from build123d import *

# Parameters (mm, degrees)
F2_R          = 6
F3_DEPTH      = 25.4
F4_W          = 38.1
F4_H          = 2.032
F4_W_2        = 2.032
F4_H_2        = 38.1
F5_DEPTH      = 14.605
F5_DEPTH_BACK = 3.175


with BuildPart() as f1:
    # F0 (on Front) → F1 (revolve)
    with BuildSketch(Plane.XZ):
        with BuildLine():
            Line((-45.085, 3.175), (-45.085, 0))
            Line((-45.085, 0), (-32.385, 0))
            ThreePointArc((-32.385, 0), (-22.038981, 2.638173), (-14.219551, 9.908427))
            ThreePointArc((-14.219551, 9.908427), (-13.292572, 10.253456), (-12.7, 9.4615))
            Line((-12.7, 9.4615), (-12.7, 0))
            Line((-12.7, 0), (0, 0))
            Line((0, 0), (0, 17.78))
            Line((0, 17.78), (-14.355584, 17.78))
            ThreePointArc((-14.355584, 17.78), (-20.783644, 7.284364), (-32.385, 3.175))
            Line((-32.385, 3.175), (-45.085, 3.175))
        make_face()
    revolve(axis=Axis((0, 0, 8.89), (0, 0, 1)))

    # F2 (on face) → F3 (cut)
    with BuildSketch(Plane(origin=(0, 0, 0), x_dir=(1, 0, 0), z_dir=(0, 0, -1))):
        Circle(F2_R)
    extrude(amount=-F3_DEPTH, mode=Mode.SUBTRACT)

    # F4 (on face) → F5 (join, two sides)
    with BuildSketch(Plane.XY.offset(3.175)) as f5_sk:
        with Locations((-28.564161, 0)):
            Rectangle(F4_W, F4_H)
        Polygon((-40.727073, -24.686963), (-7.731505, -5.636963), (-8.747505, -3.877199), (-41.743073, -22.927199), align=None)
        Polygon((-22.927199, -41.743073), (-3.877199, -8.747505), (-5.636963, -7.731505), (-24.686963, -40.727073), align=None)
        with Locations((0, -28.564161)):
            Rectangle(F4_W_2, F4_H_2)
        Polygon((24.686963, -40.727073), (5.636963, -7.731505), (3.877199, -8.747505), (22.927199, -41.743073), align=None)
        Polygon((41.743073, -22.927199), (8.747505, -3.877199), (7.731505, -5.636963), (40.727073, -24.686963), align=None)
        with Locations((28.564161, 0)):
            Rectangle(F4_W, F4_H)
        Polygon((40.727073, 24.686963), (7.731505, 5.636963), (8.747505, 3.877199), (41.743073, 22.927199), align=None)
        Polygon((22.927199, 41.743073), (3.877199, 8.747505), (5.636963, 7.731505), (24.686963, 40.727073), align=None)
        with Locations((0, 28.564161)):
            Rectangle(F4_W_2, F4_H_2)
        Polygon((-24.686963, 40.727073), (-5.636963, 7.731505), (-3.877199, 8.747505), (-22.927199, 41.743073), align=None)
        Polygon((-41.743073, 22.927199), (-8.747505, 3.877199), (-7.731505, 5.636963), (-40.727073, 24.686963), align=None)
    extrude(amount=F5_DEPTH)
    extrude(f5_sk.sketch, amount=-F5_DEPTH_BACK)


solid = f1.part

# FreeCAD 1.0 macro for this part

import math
import FreeCAD as App
import Part
import Sketcher

V = App.Vector
Q = App.Units.Quantity

doc = App.newDocument("Part")
params = doc.addObject("Spreadsheet::Sheet", "Params")
for row, (alias, value) in enumerate([
    ("sketch1_width", "0.5 in"),
    ("sketch1_height", "0.7 in"),
    ("sketch1_height2", "0.125 in"),
    ("revolution_angle", "360 deg"),
    ("pocket1_length", "1 in"),
    ("sketch3_width", "1.5 in"),
    ("sketch3_length", "1.5 in"),
    ("sketch3_width2", "0.08 in"),
    ("sketch3_length2", "0.08 in"),
    ("pad1_length", "0.575 in"),
    ("pad1_length2", "0.125 in"),
], start=1):
    params.set(f"A{row}", alias)
    params.set(f"B{row}", "=" + value)
    params.setAlias(f"B{row}", alias)

body = doc.addObject("PartDesign::Body", "Body")

# Sketch on XZ plane
sketch1 = doc.addObject("Sketcher::SketchObject", "Sketch")
body.addObject(sketch1)
sketch1.AttachmentSupport = (doc.XZ_Plane, [""])
sketch1.MapMode = "FlatFace"
sketch1.addGeometry([
    Part.LineSegment(V(-45.1, 3.2, 0), V(-45.1, 0, 0)),  # 0
    Part.LineSegment(V(-45.1, 0, 0), V(-32.4, 0, 0)),  # 1
    Part.ArcOfCircle(Part.Circle(V(-32.4, 21.6, 0), V(0, 0, 1), 21.6), math.radians(-90), math.radians(-33)),  # 2
    Part.ArcOfCircle(Part.Circle(V(-13.5, 9.5, 0), V(0, 0, 1), 0.8), math.radians(0), math.radians(147)),  # 3
    Part.LineSegment(V(-12.7, 9.5, 0), V(-12.7, 0, 0)),  # 4
    Part.LineSegment(V(-12.7, 0, 0), V(0, 0, 0)),  # 5
    Part.LineSegment(V(0, 0, 0), V(0, 17.8, 0)),  # 6
    Part.LineSegment(V(0, 17.8, 0), V(-14.4, 17.8, 0)),  # 7
    Part.ArcOfCircle(Part.Circle(V(-32.4, 21.6, 0), V(0, 0, 1), 18.4), math.radians(-90), math.radians(-12)),  # 8
    Part.LineSegment(V(-32.4, 3.2, 0), V(-45.1, 3.2, 0)),  # 9
], False)
sketch1.addConstraint([
    Sketcher.Constraint("Coincident", 0, 2, 1, 1),
    Sketcher.Constraint("Tangent", 1, 2, 2, 1),
    Sketcher.Constraint("Tangent", 2, 2, 3, 2),
    Sketcher.Constraint("Tangent", 3, 1, 4, 1),
    Sketcher.Constraint("Coincident", 4, 2, 5, 1),
    Sketcher.Constraint("Coincident", 5, 2, 6, 1),
    Sketcher.Constraint("Coincident", 6, 2, 7, 1),
    Sketcher.Constraint("Coincident", 7, 2, 8, 2),
    Sketcher.Constraint("Tangent", 8, 1, 9, 1),
    Sketcher.Constraint("Coincident", 9, 2, 0, 1),
    Sketcher.Constraint("Vertical", 0),
    Sketcher.Constraint("Horizontal", 1),
    Sketcher.Constraint("Vertical", 4),
    Sketcher.Constraint("Horizontal", 5),
    Sketcher.Constraint("Vertical", 6),
    Sketcher.Constraint("Horizontal", 7),
    Sketcher.Constraint("Horizontal", 9),
    Sketcher.Constraint("Coincident", 5, 2, -1, 1),
    Sketcher.Constraint("Coincident", 8, 3, 2, 3),
    Sketcher.Constraint("PointOnObject", 0, 2, -1),
    Sketcher.Constraint("Equal", 1, 5),
    Sketcher.Constraint("DistanceX", 1, 1, 1, 2, Q("0.5 in")),
    Sketcher.Constraint("DistanceY", 6, 1, 6, 2, Q("0.7 in")),
    Sketcher.Constraint("Radius", 3, Q("0.0325 in")),
    Sketcher.Constraint("DistanceY", 0, 2, 0, 1, Q("0.125 in")),
    Sketcher.Constraint("DistanceY", 4, 2, 4, 1, Q("0.3725 in")),
    Sketcher.Constraint("DistanceX", 2, 3, -1, 1, Q("1.275 in")),
])
sketch1.setExpression("Constraints[21]", "Params.sketch1_width")
sketch1.setExpression("Constraints[22]", "Params.sketch1_height")
sketch1.setExpression("Constraints[24]", "Params.sketch1_height2")
revolution = doc.addObject("PartDesign::Revolution", "Revolution")
body.addObject(revolution)
revolution.Profile = sketch1
revolution.ReferenceAxis = (sketch1, ["V_Axis"])
revolution.setExpression("Angle", "Params.revolution_angle")

# Sketch on XY plane
sketch2 = doc.addObject("Sketcher::SketchObject", "Sketch001")
body.addObject(sketch2)
sketch2.AttachmentSupport = (doc.XY_Plane, [""])
sketch2.MapMode = "FlatFace"
sketch2.addGeometry(Part.Circle(V(0, 0, 0), V(0, 0, 1), 6), False)
sketch2.addConstraint([
    Sketcher.Constraint("Coincident", 0, 3, -1, 1),
    Sketcher.Constraint("Diameter", 0, Q("12 mm")),
])
pocket1 = doc.addObject("PartDesign::Pocket", "Pocket")
body.addObject(pocket1)
pocket1.Profile = sketch2
pocket1.setExpression("Length", "Params.pocket1_length")
pocket1.Reversed = True

# Sketch on XY plane
sketch3 = doc.addObject("Sketcher::SketchObject", "Sketch002")
body.addObject(sketch3)
sketch3.AttachmentSupport = (doc.XY_Plane, [""])
sketch3.MapMode = "FlatFace"
sketch3.AttachmentOffset = App.Placement(V(0, 0, 0.125 * 25.4), App.Rotation())
sketch3.addGeometry([
    Part.LineSegment(V(-47.6, 1, 0), V(-47.6, -1, 0)),  # 0
    Part.LineSegment(V(-47.6, -1, 0), V(-9.5, -1, 0)),  # 1
    Part.LineSegment(V(-9.5, -1, 0), V(-9.5, 1, 0)),  # 2
    Part.LineSegment(V(-9.5, 1, 0), V(-47.6, 1, 0)),  # 3
    Part.LineSegment(V(-40.7, -24.7, 0), V(-7.7, -5.6, 0)),  # 4
    Part.LineSegment(V(-7.7, -5.6, 0), V(-8.7, -3.9, 0)),  # 5
    Part.LineSegment(V(-8.7, -3.9, 0), V(-41.7, -22.9, 0)),  # 6
    Part.LineSegment(V(-41.7, -22.9, 0), V(-40.7, -24.7, 0)),  # 7
    Part.LineSegment(V(-22.9, -41.7, 0), V(-3.9, -8.7, 0)),  # 8
    Part.LineSegment(V(-3.9, -8.7, 0), V(-5.6, -7.7, 0)),  # 9
    Part.LineSegment(V(-5.6, -7.7, 0), V(-24.7, -40.7, 0)),  # 10
    Part.LineSegment(V(-24.7, -40.7, 0), V(-22.9, -41.7, 0)),  # 11
    Part.LineSegment(V(-1, -9.5, 0), V(-1, -47.6, 0)),  # 12
    Part.LineSegment(V(-1, -47.6, 0), V(1, -47.6, 0)),  # 13
    Part.LineSegment(V(1, -47.6, 0), V(1, -9.5, 0)),  # 14
    Part.LineSegment(V(1, -9.5, 0), V(-1, -9.5, 0)),  # 15
    Part.LineSegment(V(24.7, -40.7, 0), V(5.6, -7.7, 0)),  # 16
    Part.LineSegment(V(5.6, -7.7, 0), V(3.9, -8.7, 0)),  # 17
    Part.LineSegment(V(3.9, -8.7, 0), V(22.9, -41.7, 0)),  # 18
    Part.LineSegment(V(22.9, -41.7, 0), V(24.7, -40.7, 0)),  # 19
    Part.LineSegment(V(41.7, -22.9, 0), V(8.7, -3.9, 0)),  # 20
    Part.LineSegment(V(8.7, -3.9, 0), V(7.7, -5.6, 0)),  # 21
    Part.LineSegment(V(7.7, -5.6, 0), V(40.7, -24.7, 0)),  # 22
    Part.LineSegment(V(40.7, -24.7, 0), V(41.7, -22.9, 0)),  # 23
    Part.LineSegment(V(9.5, 1, 0), V(9.5, -1, 0)),  # 24
    Part.LineSegment(V(9.5, -1, 0), V(47.6, -1, 0)),  # 25
    Part.LineSegment(V(47.6, -1, 0), V(47.6, 1, 0)),  # 26
    Part.LineSegment(V(47.6, 1, 0), V(9.5, 1, 0)),  # 27
    Part.LineSegment(V(40.7, 24.7, 0), V(7.7, 5.6, 0)),  # 28
    Part.LineSegment(V(7.7, 5.6, 0), V(8.7, 3.9, 0)),  # 29
    Part.LineSegment(V(8.7, 3.9, 0), V(41.7, 22.9, 0)),  # 30
    Part.LineSegment(V(41.7, 22.9, 0), V(40.7, 24.7, 0)),  # 31
    Part.LineSegment(V(22.9, 41.7, 0), V(3.9, 8.7, 0)),  # 32
    Part.LineSegment(V(3.9, 8.7, 0), V(5.6, 7.7, 0)),  # 33
    Part.LineSegment(V(5.6, 7.7, 0), V(24.7, 40.7, 0)),  # 34
    Part.LineSegment(V(24.7, 40.7, 0), V(22.9, 41.7, 0)),  # 35
    Part.LineSegment(V(-1, 47.6, 0), V(-1, 9.5, 0)),  # 36
    Part.LineSegment(V(-1, 9.5, 0), V(1, 9.5, 0)),  # 37
    Part.LineSegment(V(1, 9.5, 0), V(1, 47.6, 0)),  # 38
    Part.LineSegment(V(1, 47.6, 0), V(-1, 47.6, 0)),  # 39
    Part.LineSegment(V(-24.7, 40.7, 0), V(-5.6, 7.7, 0)),  # 40
    Part.LineSegment(V(-5.6, 7.7, 0), V(-3.9, 8.7, 0)),  # 41
    Part.LineSegment(V(-3.9, 8.7, 0), V(-22.9, 41.7, 0)),  # 42
    Part.LineSegment(V(-22.9, 41.7, 0), V(-24.7, 40.7, 0)),  # 43
    Part.LineSegment(V(-41.7, 22.9, 0), V(-8.7, 3.9, 0)),  # 44
    Part.LineSegment(V(-8.7, 3.9, 0), V(-7.7, 5.6, 0)),  # 45
    Part.LineSegment(V(-7.7, 5.6, 0), V(-40.7, 24.7, 0)),  # 46
    Part.LineSegment(V(-40.7, 24.7, 0), V(-41.7, 22.9, 0)),  # 47
], False)
sketch3.addConstraint([
    Sketcher.Constraint("Coincident", 0, 2, 1, 1),
    Sketcher.Constraint("Coincident", 1, 2, 2, 1),
    Sketcher.Constraint("Coincident", 2, 2, 3, 1),
    Sketcher.Constraint("Coincident", 3, 2, 0, 1),
    Sketcher.Constraint("Coincident", 4, 2, 5, 1),
    Sketcher.Constraint("Coincident", 5, 2, 6, 1),
    Sketcher.Constraint("Coincident", 6, 2, 7, 1),
    Sketcher.Constraint("Coincident", 7, 2, 4, 1),
    Sketcher.Constraint("Coincident", 8, 2, 9, 1),
    Sketcher.Constraint("Coincident", 9, 2, 10, 1),
    Sketcher.Constraint("Coincident", 10, 2, 11, 1),
    Sketcher.Constraint("Coincident", 11, 2, 8, 1),
    Sketcher.Constraint("Coincident", 12, 2, 13, 1),
    Sketcher.Constraint("Coincident", 13, 2, 14, 1),
    Sketcher.Constraint("Coincident", 14, 2, 15, 1),
    Sketcher.Constraint("Coincident", 15, 2, 12, 1),
    Sketcher.Constraint("Coincident", 16, 2, 17, 1),
    Sketcher.Constraint("Coincident", 17, 2, 18, 1),
    Sketcher.Constraint("Coincident", 18, 2, 19, 1),
    Sketcher.Constraint("Coincident", 19, 2, 16, 1),
    Sketcher.Constraint("Coincident", 20, 2, 21, 1),
    Sketcher.Constraint("Coincident", 21, 2, 22, 1),
    Sketcher.Constraint("Coincident", 22, 2, 23, 1),
    Sketcher.Constraint("Coincident", 23, 2, 20, 1),
    Sketcher.Constraint("Coincident", 24, 2, 25, 1),
    Sketcher.Constraint("Coincident", 25, 2, 26, 1),
    Sketcher.Constraint("Coincident", 26, 2, 27, 1),
    Sketcher.Constraint("Coincident", 27, 2, 24, 1),
    Sketcher.Constraint("Coincident", 28, 2, 29, 1),
    Sketcher.Constraint("Coincident", 29, 2, 30, 1),
    Sketcher.Constraint("Coincident", 30, 2, 31, 1),
    Sketcher.Constraint("Coincident", 31, 2, 28, 1),
    Sketcher.Constraint("Coincident", 32, 2, 33, 1),
    Sketcher.Constraint("Coincident", 33, 2, 34, 1),
    Sketcher.Constraint("Coincident", 34, 2, 35, 1),
    Sketcher.Constraint("Coincident", 35, 2, 32, 1),
    Sketcher.Constraint("Coincident", 36, 2, 37, 1),
    Sketcher.Constraint("Coincident", 37, 2, 38, 1),
    Sketcher.Constraint("Coincident", 38, 2, 39, 1),
    Sketcher.Constraint("Coincident", 39, 2, 36, 1),
    Sketcher.Constraint("Coincident", 40, 2, 41, 1),
    Sketcher.Constraint("Coincident", 41, 2, 42, 1),
    Sketcher.Constraint("Coincident", 42, 2, 43, 1),
    Sketcher.Constraint("Coincident", 43, 2, 40, 1),
    Sketcher.Constraint("Coincident", 44, 2, 45, 1),
    Sketcher.Constraint("Coincident", 45, 2, 46, 1),
    Sketcher.Constraint("Coincident", 46, 2, 47, 1),
    Sketcher.Constraint("Coincident", 47, 2, 44, 1),
    Sketcher.Constraint("Vertical", 0),
    Sketcher.Constraint("Horizontal", 1),
    Sketcher.Constraint("Vertical", 2),
    Sketcher.Constraint("Horizontal", 3),
    Sketcher.Constraint("Vertical", 12),
    Sketcher.Constraint("Horizontal", 13),
    Sketcher.Constraint("Vertical", 14),
    Sketcher.Constraint("Horizontal", 15),
    Sketcher.Constraint("Vertical", 24),
    Sketcher.Constraint("Horizontal", 25),
    Sketcher.Constraint("Vertical", 26),
    Sketcher.Constraint("Horizontal", 27),
    Sketcher.Constraint("Vertical", 36),
    Sketcher.Constraint("Horizontal", 37),
    Sketcher.Constraint("Vertical", 38),
    Sketcher.Constraint("Horizontal", 39),
    Sketcher.Constraint("Symmetric", 2, 2, 24, 2, -1, 1),
    Sketcher.Constraint("Symmetric", 0, 2, 26, 2, -1, 1),
    Sketcher.Constraint("Symmetric", 4, 2, 28, 2, -1, 1),
    Sketcher.Constraint("Symmetric", 5, 2, 29, 2, -1, 1),
    Sketcher.Constraint("Symmetric", 6, 2, 30, 2, -1, 1),
    Sketcher.Constraint("Symmetric", 7, 2, 31, 2, -1, 1),
    Sketcher.Constraint("Symmetric", 8, 2, 32, 2, -1, 1),
    Sketcher.Constraint("Symmetric", 9, 2, 33, 2, -1, 1),
    Sketcher.Constraint("Symmetric", 10, 2, 34, 2, -1, 1),
    Sketcher.Constraint("Symmetric", 11, 2, 35, 2, -1, 1),
    Sketcher.Constraint("Symmetric", 14, 2, 36, 2, -1, 1),
    Sketcher.Constraint("Symmetric", 12, 2, 38, 2, -1, 1),
    Sketcher.Constraint("Symmetric", 16, 2, 40, 2, -1, 1),
    Sketcher.Constraint("Symmetric", 17, 2, 41, 2, -1, 1),
    Sketcher.Constraint("Symmetric", 18, 2, 42, 2, -1, 1),
    Sketcher.Constraint("Symmetric", 19, 2, 43, 2, -1, 1),
    Sketcher.Constraint("Symmetric", 20, 2, 44, 2, -1, 1),
    Sketcher.Constraint("Symmetric", 21, 2, 45, 2, -1, 1),
    Sketcher.Constraint("Symmetric", 22, 2, 46, 2, -1, 1),
    Sketcher.Constraint("Symmetric", 23, 2, 47, 2, -1, 1),
    Sketcher.Constraint("Symmetric", 9, 2, 16, 2, -2),
    Sketcher.Constraint("Symmetric", 8, 2, 17, 2, -2),
    Sketcher.Constraint("Symmetric", 11, 2, 18, 2, -2),
    Sketcher.Constraint("Symmetric", 10, 2, 19, 2, -2),
    Sketcher.Constraint("Symmetric", 5, 2, 20, 2, -2),
    Sketcher.Constraint("Symmetric", 4, 2, 21, 2, -2),
    Sketcher.Constraint("Symmetric", 7, 2, 22, 2, -2),
    Sketcher.Constraint("Symmetric", 6, 2, 23, 2, -2),
    Sketcher.Constraint("Perpendicular", 4, 5),
    Sketcher.Constraint("Perpendicular", 5, 6),
    Sketcher.Constraint("Perpendicular", 6, 7),
    Sketcher.Constraint("Perpendicular", 8, 9),
    Sketcher.Constraint("Perpendicular", 9, 10),
    Sketcher.Constraint("Perpendicular", 10, 11),
    Sketcher.Constraint("Parallel", 7, 16),
    Sketcher.Constraint("Horizontal", 1, 2, 24, 2),
    Sketcher.Constraint("Vertical", 15, 2, 36, 2),
    Sketcher.Constraint("Equal", 39, 0),
    Sketcher.Constraint("Equal", 27, 12),
    Sketcher.Constraint("Equal", 6, 8),
    Sketcher.Constraint("Equal", 7, 9),
    Sketcher.Constraint("DistanceX", 1, 1, 1, 2, Q("1.5 in")),
    Sketcher.Constraint("Angle", 4, Q("30 deg")),
    Sketcher.Constraint("Distance", 4, Q("1.5 in")),
    Sketcher.Constraint("DistanceX", 13, 1, 13, 2, Q("0.08 in")),
    Sketcher.Constraint("Distance", 5, Q("0.08 in")),
    Sketcher.Constraint("DistanceY", 5, 2, -1, 1, Q("3.877199 mm")),
    Sketcher.Constraint("DistanceX", 8, 2, -1, 1, Q("3.877199 mm")),
    Sketcher.Constraint("DistanceX", 0, 2, -1, 1, Q("47.614161 mm")),
    Sketcher.Constraint("DistanceY", 12, 2, -1, 1, Q("47.614161 mm")),
    Sketcher.Constraint("DistanceX", 0, 2, 6, 2, Q("5.871088 mm")),
    Sketcher.Constraint("DistanceY", 10, 2, 7, 2, Q("16.04011 mm")),
])
sketch3.setExpression("Constraints[105]", "Params.sketch3_width")
sketch3.setExpression("Constraints[107]", "Params.sketch3_length")
sketch3.setExpression("Constraints[108]", "Params.sketch3_width2")
sketch3.setExpression("Constraints[109]", "Params.sketch3_length2")
pad1 = doc.addObject("PartDesign::Pad", "Pad")
body.addObject(pad1)
pad1.Profile = sketch3
pad1.Type = "TwoLengths"
pad1.setExpression("Length", "Params.pad1_length")
pad1.setExpression("Length2", "Params.pad1_length2")

doc.recompute()
